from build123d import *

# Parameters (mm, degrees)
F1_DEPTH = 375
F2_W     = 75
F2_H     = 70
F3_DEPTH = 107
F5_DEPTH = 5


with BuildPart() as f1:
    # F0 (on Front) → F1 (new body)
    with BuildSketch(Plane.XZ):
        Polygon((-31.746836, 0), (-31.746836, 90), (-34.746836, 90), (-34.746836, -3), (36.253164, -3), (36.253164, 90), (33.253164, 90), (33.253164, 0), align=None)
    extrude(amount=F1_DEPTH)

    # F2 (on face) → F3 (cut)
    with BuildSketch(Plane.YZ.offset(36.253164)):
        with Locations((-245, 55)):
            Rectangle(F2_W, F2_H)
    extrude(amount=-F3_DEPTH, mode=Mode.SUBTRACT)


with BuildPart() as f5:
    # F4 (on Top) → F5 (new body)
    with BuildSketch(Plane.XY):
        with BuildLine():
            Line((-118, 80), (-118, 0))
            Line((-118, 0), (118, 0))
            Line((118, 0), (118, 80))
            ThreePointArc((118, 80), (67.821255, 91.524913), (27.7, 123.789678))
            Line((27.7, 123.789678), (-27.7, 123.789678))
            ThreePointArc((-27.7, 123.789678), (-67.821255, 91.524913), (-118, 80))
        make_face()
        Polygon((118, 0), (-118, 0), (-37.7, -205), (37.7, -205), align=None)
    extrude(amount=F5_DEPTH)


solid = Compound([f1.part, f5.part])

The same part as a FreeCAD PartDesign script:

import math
import FreeCAD as App
import Part
import Sketcher


def add_polygon(sketch, points):
    """Adds a closed chain of lines whose ends are joined by coincident constraints."""
    first, n = sketch.GeometryCount, len(points)
    for a, b in zip(points, points[1:] + points[:1]):
        sketch.addGeometry(Part.LineSegment(App.Vector(*a, 0), App.Vector(*b, 0)), False)
    for i in range(n):
        sketch.addConstraint(Sketcher.Constraint("Coincident", first + i, 2, first + (i + 1) % n, 1))

doc = App.newDocument("Part")
params = doc.addObject("Spreadsheet::Sheet", "Params")
for row, (alias, value) in enumerate([
    ("sketch1_width", "3 mm"),
    ("sketch1_width2", "71 mm"),
    ("sketch1_height", "90 mm"),
    ("sketch1_height2", "93 mm"),
    ("pad1_length", "375 mm"),
    ("sketch2_width", "75 mm"),
    ("sketch2_height", "70 mm"),
    ("pocket1_length", "107 mm"),
    ("sketch3_height", "80 mm"),
    ("sketch3_width", "75.4 mm"),
    ("sketch3_width2", "55.4 mm"),
    ("pad2_length", "5 mm"),
], start=1):
    params.set(f"A{row}", alias)
    params.set(f"B{row}", "=" + value)
    params.setAlias(f"B{row}", alias)

body = doc.addObject("PartDesign::Body", "Body")

sketch1 = body.newObject("Sketcher::SketchObject", "Sketch")
sketch1.AttachmentSupport = (doc.getObject("XZ_Plane"), [""])
sketch1.MapMode = "FlatFace"
add_polygon(sketch1, [(-31.746836, 0), (-31.746836, 90), (-34.746836, 90), (-34.746836, -3), (36.253164, -3), (36.253164, 90), (33.253164, 90), (33.253164, 0)])
sketch1.addConstraint(Sketcher.Constraint("Vertical", 0))
sketch1.addConstraint(Sketcher.Constraint("Horizontal", 1))
sketch1.addConstraint(Sketcher.Constraint("Vertical", 2))
sketch1.addConstraint(Sketcher.Constraint("Horizontal", 3))
sketch1.addConstraint(Sketcher.Constraint("Vertical", 4))
sketch1.addConstraint(Sketcher.Constraint("Horizontal", 5))
sketch1.addConstraint(Sketcher.Constraint("Vertical", 6))
sketch1.addConstraint(Sketcher.Constraint("Horizontal", 7))
sketch1.addConstraint(Sketcher.Constraint("PointOnObject", 6, 2, -1))
sketch1.addConstraint(Sketcher.Constraint("Horizontal", 1, 2, 4, 2))
sketch1.addConstraint(Sketcher.Constraint("Equal", 1, 5))
sketch1.addConstraint(Sketcher.Constraint("DistanceX", 1, 2, 1, 1, 3.0))
sketch1.addConstraint(Sketcher.Constraint("DistanceX", 3, 1, 3, 2, 71.0))
sketch1.addConstraint(Sketcher.Constraint("DistanceY", 0, 1, 0, 2, 90.0))
sketch1.addConstraint(Sketcher.Constraint("DistanceY", 2, 2, 2, 1, 93.0))
sketch1.addConstraint(Sketcher.Constraint("DistanceX", 0, 2, -1, 1, 31.746836))
sketch1.setExpression("Constraints[19]", "Params.sketch1_width")
sketch1.setExpression("Constraints[20]", "Params.sketch1_width2")
sketch1.setExpression("Constraints[21]", "Params.sketch1_height")
sketch1.setExpression("Constraints[22]", "Params.sketch1_height2")
pad1 = body.newObject("PartDesign::Pad", "Pad")
pad1.Profile = sketch1
pad1.setExpression("Length", "Params.pad1_length")

sketch2 = body.newObject("Sketcher::SketchObject", "Sketch001")
sketch2.AttachmentSupport = (doc.getObject("YZ_Plane"), [""])
sketch2.MapMode = "FlatFace"
sketch2.AttachmentOffset = App.Placement(App.Vector(0, 0, 36.253164), App.Rotation())
add_polygon(sketch2, [(-282.5, 90), (-282.5, 20), (-207.5, 20), (-207.5, 90)])
sketch2.addConstraint(Sketcher.Constraint("Vertical", 0))
sketch2.addConstraint(Sketcher.Constraint("Horizontal", 1))
sketch2.addConstraint(Sketcher.Constraint("Vertical", 2))
sketch2.addConstraint(Sketcher.Constraint("Horizontal", 3))
sketch2.addConstraint(Sketcher.Constraint("DistanceX", 1, 1, 1, 2, 75.0))
sketch2.addConstraint(Sketcher.Constraint("DistanceY", 0, 2, 0, 1, 70.0))
sketch2.addConstraint(Sketcher.Constraint("DistanceY", -1, 1, 0, 2, 20.0))
sketch2.addConstraint(Sketcher.Constraint("DistanceX", 0, 2, -1, 1, 282.5))
sketch2.setExpression("Constraints[8]", "Params.sketch2_width")
sketch2.setExpression("Constraints[9]", "Params.sketch2_height")
pocket1 = body.newObject("PartDesign::Pocket", "Pocket")
pocket1.Profile = sketch2
pocket1.setExpression("Length", "Params.pocket1_length")
body2 = doc.addObject("PartDesign::Body", "Body001")

sketch3 = body2.newObject("Sketcher::SketchObject", "Sketch002")
sketch3.AttachmentSupport = (doc.getObject("XY_Plane001"), [""])
sketch3.MapMode = "FlatFace"
sketch3.addGeometry(Part.LineSegment(App.Vector(-118, 80, 0), App.Vector(-118, 0, 0)), False)
sketch3.addGeometry(Part.LineSegment(App.Vector(-118, 0, 0), App.Vector(-37.7, -205, 0)), False)
sketch3.addGeometry(Part.LineSegment(App.Vector(-37.7, -205, 0), App.Vector(37.7, -205, 0)), False)
sketch3.addGeometry(Part.LineSegment(App.Vector(37.7, -205, 0), App.Vector(118, 0, 0)), False)
sketch3.addGeometry(Part.LineSegment(App.Vector(118, 0, 0), App.Vector(118, 80, 0)), False)
sketch3.addGeometry(Part.ArcOfCircle(Part.Circle(App.Vector(117.999998, 194.999996, 0), App.Vector(0, 0, 1), 114.999996), math.radians(-141.74079), math.radians(-89.999999)), False)
sketch3.addGeometry(Part.LineSegment(App.Vector(27.7, 123.789678, 0), App.Vector(-27.7, 123.789678, 0)), False)
sketch3.addGeometry(Part.ArcOfCircle(Part.Circle(App.Vector(-117.999998, 194.999996, 0), App.Vector(0, 0, 1), 114.999996), math.radians(-90.000001), math.radians(-38.25921)), False)
sketch3.addConstraint(Sketcher.Constraint("Coincident", 0, 2, 1, 1))
sketch3.addConstraint(Sketcher.Constraint("Coincident", 1, 2, 2, 1))
sketch3.addConstraint(Sketcher.Constraint("Coincident", 2, 2, 3, 1))
sketch3.addConstraint(Sketcher.Constraint("Coincident", 3, 2, 4, 1))
sketch3.addConstraint(Sketcher.Constraint("Coincident", 4, 2, 5, 2))
sketch3.addConstraint(Sketcher.Constraint("Coincident", 5, 1, 6, 1))
sketch3.addConstraint(Sketcher.Constraint("Coincident", 6, 2, 7, 2))
sketch3.addConstraint(Sketcher.Constraint("Coincident", 7, 1, 0, 1))
sketch3.addConstraint(Sketcher.Constraint("Vertical", 0))
sketch3.addConstraint(Sketcher.Constraint("Horizontal", 2))
sketch3.addConstraint(Sketcher.Constraint("Vertical", 4))
sketch3.addConstraint(Sketcher.Constraint("Horizontal", 6))
sketch3.addConstraint(Sketcher.Constraint("Equal", 5, 7))
sketch3.addConstraint(Sketcher.Constraint("Symmetric", 0, 2, 3, 2, -1, 1))
sketch3.addConstraint(Sketcher.Constraint("Symmetric", 5, 3, 7, 3, -2))
sketch3.addConstraint(Sketcher.Constraint("PointOnObject", 0, 2, -1))
sketch3.addConstraint(Sketcher.Constraint("Vertical", 7, 3, 0, 2))
sketch3.addConstraint(Sketcher.Constraint("Equal", 1, 3))
sketch3.addConstraint(Sketcher.Constraint("DistanceY", 0, 2, 0, 1, 80.0))
sketch3.addConstraint(Sketcher.Constraint("DistanceX", 2, 1, 2, 2, 75.4))
sketch3.addConstraint(Sketcher.Constraint("DistanceX", 6, 2, 6, 1, 55.4))
sketch3.addConstraint(Sketcher.Constraint("DistanceX", -1, 1, 5, 3, 117.999998))
sketch3.addConstraint(Sketcher.Constraint("DistanceY", 1, 2, -1, 1, 205.0))
sketch3.addConstraint(Sketcher.Constraint("Radius", 5, 114.999996))
sketch3.setExpression("Constraints[18]", "Params.sketch3_height")
sketch3.setExpression("Constraints[19]", "Params.sketch3_width")
sketch3.setExpression("Constraints[20]", "Params.sketch3_width2")
pad2 = body2.newObject("PartDesign::Pad", "Pad001")
pad2.Profile = sketch3
pad2.setExpression("Length", "Params.pad2_length")

doc.recompute()
